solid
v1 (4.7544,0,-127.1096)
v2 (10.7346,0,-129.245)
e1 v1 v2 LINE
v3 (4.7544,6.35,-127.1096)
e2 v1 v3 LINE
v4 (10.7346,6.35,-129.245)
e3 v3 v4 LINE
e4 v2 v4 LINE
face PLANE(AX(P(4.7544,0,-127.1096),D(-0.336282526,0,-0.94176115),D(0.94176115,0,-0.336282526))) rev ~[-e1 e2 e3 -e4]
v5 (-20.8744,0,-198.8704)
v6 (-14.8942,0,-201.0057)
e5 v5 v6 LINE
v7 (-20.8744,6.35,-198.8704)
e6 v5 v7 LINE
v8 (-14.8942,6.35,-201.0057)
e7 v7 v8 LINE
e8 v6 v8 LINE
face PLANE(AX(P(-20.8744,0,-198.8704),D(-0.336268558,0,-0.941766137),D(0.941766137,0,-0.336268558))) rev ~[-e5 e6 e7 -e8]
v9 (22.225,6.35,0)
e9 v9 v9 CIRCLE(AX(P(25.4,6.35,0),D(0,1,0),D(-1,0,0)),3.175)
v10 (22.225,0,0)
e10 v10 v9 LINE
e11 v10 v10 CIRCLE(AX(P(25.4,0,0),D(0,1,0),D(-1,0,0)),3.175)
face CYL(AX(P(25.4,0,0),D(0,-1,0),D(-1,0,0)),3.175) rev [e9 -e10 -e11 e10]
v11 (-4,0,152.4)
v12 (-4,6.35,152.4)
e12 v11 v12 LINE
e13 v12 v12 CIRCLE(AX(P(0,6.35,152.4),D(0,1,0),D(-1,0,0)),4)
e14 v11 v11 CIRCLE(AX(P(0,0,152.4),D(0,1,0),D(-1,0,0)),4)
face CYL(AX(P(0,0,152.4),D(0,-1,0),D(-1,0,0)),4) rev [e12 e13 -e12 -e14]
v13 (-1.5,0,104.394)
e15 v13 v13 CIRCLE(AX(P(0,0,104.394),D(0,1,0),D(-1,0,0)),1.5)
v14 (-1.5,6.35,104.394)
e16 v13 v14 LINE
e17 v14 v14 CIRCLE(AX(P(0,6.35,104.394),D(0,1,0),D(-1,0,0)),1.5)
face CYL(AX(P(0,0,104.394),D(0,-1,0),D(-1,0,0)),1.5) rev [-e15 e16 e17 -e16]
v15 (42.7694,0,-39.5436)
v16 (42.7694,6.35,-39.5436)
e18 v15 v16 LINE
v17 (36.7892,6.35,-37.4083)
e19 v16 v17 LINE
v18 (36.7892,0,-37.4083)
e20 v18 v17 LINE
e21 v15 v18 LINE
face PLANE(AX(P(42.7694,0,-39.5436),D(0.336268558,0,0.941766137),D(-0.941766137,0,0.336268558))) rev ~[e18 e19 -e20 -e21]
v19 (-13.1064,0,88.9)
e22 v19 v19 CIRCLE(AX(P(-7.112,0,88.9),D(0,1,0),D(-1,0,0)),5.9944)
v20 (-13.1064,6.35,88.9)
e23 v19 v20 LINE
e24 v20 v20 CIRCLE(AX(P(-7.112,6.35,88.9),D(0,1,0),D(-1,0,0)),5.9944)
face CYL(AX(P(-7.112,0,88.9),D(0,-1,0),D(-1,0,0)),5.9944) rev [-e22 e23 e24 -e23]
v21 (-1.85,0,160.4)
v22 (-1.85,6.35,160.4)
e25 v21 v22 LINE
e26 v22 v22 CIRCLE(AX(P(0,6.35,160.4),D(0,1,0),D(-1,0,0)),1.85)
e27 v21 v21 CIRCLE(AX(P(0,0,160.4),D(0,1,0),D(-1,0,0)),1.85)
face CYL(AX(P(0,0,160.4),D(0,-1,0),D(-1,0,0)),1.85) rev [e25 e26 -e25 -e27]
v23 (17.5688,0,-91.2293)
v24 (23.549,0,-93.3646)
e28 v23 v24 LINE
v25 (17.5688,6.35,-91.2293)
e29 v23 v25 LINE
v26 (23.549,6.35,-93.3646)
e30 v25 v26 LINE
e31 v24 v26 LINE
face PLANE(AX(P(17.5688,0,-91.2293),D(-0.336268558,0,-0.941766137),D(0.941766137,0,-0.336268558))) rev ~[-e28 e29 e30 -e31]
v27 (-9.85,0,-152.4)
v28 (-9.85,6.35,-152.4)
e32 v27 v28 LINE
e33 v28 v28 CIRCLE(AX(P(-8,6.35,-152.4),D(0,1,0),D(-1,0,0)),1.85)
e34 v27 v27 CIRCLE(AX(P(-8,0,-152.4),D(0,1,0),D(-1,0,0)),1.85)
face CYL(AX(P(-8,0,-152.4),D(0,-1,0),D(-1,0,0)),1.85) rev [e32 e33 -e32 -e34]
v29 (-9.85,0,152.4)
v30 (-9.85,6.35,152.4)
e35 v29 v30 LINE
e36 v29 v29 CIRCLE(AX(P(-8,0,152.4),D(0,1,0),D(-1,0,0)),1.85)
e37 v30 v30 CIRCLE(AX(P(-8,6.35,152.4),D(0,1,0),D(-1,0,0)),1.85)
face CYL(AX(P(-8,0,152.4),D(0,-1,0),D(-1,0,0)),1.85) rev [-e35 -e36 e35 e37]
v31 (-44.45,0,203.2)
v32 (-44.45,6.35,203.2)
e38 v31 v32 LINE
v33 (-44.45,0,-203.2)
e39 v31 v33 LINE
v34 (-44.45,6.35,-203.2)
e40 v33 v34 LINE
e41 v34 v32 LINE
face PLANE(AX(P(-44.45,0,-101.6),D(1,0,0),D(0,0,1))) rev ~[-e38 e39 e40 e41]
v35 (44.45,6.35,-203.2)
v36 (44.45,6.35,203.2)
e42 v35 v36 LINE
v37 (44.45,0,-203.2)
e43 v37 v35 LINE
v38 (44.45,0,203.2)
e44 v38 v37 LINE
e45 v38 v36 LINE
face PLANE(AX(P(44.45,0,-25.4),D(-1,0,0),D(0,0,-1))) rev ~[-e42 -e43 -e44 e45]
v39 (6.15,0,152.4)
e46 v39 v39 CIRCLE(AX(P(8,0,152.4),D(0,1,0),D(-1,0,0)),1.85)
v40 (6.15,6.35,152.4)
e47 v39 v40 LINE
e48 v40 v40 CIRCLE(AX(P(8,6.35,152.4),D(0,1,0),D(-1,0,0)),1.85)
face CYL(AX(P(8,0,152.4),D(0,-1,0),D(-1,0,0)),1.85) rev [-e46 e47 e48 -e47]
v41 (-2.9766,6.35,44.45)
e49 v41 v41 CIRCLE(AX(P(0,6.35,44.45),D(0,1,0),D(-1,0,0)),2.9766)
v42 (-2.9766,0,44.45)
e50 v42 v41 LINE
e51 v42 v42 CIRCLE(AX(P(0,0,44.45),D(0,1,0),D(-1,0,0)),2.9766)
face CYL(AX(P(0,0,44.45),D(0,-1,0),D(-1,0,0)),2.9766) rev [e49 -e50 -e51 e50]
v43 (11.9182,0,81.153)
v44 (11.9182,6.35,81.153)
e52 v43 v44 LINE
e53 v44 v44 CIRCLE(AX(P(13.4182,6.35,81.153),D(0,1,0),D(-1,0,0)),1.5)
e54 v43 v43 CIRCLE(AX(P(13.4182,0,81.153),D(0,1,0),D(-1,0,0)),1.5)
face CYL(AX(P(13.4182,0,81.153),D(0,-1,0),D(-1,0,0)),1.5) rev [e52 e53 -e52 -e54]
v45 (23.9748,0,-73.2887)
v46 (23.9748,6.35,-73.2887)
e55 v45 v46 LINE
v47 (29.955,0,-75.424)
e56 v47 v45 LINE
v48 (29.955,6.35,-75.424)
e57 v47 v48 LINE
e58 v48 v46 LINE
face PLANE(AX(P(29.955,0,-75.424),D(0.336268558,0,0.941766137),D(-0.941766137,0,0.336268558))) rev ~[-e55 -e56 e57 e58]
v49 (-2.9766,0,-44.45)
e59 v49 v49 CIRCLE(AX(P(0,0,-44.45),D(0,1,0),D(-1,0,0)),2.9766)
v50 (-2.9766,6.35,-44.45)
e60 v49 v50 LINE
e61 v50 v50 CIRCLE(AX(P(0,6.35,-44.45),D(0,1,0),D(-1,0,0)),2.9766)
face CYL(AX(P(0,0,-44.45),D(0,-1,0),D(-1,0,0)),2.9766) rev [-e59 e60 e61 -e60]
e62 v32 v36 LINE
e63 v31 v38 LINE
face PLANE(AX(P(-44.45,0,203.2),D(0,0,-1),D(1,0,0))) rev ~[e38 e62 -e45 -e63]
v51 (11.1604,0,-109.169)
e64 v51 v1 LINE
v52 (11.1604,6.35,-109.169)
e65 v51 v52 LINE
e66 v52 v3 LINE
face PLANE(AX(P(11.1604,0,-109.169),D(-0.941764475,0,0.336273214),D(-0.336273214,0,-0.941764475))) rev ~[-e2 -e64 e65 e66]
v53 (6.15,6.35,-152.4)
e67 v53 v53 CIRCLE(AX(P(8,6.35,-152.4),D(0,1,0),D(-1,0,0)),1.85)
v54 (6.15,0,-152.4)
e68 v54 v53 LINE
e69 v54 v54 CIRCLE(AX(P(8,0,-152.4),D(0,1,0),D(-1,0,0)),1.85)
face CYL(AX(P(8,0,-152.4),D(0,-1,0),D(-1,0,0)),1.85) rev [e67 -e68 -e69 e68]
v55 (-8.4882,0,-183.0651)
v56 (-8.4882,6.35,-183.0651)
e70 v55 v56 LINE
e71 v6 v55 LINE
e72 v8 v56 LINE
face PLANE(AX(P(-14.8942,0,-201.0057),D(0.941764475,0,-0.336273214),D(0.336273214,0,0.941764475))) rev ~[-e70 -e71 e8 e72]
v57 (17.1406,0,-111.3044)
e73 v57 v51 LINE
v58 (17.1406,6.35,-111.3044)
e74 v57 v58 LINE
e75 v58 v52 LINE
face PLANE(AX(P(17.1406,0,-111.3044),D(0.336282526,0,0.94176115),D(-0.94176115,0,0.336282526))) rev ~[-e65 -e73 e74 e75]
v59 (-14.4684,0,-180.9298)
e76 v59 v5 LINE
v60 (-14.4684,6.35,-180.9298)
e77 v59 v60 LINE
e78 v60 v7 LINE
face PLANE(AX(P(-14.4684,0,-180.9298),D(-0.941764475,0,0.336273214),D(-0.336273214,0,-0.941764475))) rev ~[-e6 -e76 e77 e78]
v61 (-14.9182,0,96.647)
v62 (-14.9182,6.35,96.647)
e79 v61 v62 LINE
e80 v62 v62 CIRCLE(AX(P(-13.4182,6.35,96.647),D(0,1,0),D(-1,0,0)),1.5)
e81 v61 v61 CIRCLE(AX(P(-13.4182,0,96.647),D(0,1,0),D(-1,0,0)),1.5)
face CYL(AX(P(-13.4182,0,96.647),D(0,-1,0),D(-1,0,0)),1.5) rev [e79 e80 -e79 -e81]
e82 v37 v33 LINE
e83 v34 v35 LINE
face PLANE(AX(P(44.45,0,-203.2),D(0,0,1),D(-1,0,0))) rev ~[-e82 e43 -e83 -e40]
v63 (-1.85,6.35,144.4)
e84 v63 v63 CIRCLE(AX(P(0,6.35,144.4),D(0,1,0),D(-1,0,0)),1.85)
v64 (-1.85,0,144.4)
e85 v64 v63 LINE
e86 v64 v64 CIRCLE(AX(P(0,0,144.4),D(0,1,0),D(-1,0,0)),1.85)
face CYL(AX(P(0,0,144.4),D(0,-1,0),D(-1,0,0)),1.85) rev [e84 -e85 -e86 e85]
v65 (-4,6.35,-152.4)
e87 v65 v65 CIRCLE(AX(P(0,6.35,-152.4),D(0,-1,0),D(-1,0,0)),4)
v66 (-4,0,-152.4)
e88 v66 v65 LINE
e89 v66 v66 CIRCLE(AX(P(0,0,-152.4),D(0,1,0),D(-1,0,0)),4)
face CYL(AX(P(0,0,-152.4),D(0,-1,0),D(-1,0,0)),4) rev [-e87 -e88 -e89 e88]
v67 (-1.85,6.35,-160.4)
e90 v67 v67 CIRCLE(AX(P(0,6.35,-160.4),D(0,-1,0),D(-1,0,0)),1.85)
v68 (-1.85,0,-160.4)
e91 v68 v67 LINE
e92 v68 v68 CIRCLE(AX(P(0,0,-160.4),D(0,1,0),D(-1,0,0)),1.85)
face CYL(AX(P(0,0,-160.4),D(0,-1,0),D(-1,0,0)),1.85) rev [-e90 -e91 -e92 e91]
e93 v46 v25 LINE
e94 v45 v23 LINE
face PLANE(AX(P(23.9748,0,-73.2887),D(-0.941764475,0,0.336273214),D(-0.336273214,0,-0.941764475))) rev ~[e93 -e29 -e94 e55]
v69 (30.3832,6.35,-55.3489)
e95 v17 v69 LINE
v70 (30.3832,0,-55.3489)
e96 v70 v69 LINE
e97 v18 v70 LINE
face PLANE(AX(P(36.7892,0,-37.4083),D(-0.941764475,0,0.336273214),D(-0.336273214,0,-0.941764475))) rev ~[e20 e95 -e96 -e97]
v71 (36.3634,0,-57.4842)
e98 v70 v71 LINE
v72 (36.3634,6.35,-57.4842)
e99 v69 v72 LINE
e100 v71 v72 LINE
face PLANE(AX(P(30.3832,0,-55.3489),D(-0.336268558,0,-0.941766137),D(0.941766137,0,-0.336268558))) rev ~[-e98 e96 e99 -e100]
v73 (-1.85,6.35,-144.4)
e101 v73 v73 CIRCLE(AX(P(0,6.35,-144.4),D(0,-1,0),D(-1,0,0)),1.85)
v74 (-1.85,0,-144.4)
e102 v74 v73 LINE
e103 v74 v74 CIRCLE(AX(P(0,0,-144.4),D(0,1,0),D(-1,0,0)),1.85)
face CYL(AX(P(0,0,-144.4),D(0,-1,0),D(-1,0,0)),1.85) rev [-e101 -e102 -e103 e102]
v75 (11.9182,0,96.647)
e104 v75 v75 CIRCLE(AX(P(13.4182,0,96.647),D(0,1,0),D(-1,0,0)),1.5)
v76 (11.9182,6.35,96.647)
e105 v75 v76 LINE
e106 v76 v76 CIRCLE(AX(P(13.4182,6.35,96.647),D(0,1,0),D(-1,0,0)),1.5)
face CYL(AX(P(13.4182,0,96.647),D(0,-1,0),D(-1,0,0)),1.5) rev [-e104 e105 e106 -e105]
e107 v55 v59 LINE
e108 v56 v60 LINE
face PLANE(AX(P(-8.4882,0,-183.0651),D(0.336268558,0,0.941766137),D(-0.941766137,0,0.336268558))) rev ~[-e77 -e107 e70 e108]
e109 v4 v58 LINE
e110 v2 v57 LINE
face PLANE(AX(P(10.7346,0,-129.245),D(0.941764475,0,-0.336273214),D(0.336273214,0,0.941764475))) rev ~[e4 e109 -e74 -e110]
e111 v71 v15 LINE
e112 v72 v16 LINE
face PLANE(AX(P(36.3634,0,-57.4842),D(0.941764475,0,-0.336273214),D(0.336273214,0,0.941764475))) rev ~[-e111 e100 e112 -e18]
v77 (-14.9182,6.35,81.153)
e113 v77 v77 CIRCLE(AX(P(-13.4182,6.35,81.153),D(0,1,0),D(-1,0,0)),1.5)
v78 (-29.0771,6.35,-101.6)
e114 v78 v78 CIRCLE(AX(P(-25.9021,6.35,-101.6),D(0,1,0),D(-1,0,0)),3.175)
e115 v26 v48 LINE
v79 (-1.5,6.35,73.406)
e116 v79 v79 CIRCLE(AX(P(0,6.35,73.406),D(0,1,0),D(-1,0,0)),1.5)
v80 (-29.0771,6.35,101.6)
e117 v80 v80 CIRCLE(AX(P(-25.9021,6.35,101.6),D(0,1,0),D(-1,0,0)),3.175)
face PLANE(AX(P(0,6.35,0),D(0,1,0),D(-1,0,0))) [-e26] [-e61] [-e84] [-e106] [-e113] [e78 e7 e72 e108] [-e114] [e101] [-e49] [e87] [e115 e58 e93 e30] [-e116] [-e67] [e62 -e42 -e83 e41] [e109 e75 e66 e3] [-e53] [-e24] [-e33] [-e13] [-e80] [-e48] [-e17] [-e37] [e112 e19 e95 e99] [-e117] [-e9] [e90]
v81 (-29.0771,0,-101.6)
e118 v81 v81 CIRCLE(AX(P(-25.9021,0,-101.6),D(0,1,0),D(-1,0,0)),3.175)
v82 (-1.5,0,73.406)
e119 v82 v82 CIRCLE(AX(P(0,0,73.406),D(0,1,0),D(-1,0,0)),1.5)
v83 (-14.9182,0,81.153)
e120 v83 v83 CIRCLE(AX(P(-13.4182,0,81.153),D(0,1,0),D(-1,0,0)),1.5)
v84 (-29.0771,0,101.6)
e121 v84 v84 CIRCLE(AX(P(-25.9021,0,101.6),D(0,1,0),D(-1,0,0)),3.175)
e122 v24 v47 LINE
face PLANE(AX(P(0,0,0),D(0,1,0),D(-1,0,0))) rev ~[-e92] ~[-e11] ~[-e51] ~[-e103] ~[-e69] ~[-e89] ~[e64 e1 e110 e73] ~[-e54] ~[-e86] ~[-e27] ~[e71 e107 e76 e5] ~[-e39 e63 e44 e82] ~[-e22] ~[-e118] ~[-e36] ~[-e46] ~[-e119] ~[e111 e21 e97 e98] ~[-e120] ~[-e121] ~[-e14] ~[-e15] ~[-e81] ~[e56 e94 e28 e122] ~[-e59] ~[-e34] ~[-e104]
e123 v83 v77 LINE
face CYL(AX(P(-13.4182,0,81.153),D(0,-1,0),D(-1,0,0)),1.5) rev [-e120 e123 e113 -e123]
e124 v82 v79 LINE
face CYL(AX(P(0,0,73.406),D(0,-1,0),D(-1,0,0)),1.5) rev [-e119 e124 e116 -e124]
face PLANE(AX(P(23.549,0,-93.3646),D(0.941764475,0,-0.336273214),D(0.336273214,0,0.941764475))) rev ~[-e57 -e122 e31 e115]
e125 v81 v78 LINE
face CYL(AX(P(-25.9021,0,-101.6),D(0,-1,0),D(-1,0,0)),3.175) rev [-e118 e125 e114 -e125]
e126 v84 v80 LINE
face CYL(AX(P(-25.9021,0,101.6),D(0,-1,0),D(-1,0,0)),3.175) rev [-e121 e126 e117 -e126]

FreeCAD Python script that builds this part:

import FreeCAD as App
import Part
import Sketcher

V = App.Vector
Q = App.Units.Quantity


def add_polygon(sketch, points):
    """Adds a closed chain of lines whose ends are joined by coincident constraints."""
    first, n = sketch.GeometryCount, len(points)
    for a, b in zip(points, points[1:] + points[:1]):
        sketch.addGeometry(Part.LineSegment(App.Vector(*a, 0), App.Vector(*b, 0)), False)
    for i in range(n):
        sketch.addConstraint(Sketcher.Constraint("Coincident", first + i, 2, first + (i + 1) % n, 1))

doc = App.newDocument("Part")
params = doc.addObject("Spreadsheet::Sheet", "Params")
for row, (alias, value) in enumerate([
    ("sketch1_diameter", "0.25 in"),
    ("sketch1_height", "16 in"),
    ("sketch1_diameter2", "0.234378 in"),
    ("sketch1_diameter3", "0.472 in"),
    ("sketch1_width", "3.5 in"),
    ("pad1_length", "0.25 in"),
], start=1):
    params.set(f"A{row}", alias)
    params.set(f"B{row}", "=" + value)
    params.setAlias(f"B{row}", alias)

body = doc.addObject("PartDesign::Body", "Body")

sketch1 = body.newObject("Sketcher::SketchObject", "Sketch")
sketch1.AttachmentSupport = (doc.getObject("XZ_Plane"), [""])
sketch1.MapMode = "FlatFace"
add_polygon(sketch1, [(44.5, -203.2), (-44.5, -203.2), (-44.5, 203.2), (44.5, 203.2)])
sketch1.addGeometry(Part.Circle(V(8, -152.4, 0), V(0, 0, 1), 1.9), False)
add_polygon(sketch1, [(4.8, -127.1), (10.7, -129.2), (17.1, -111.3), (11.2, -109.2)])
add_polygon(sketch1, [(17.6, -91.2), (23.5, -93.4), (30, -75.4), (24, -73.3)])
add_polygon(sketch1, [(36.8, -37.4), (30.4, -55.3), (36.4, -57.5), (42.8, -39.5)])
sketch1.addGeometry(Part.Circle(V(25.4, 0, 0), V(0, 0, 1), 3.2), False)
sketch1.addGeometry(Part.Circle(V(0, -152.4, 0), V(0, 0, 1), 4), False)
sketch1.addGeometry(Part.Circle(V(0, -160.4, 0), V(0, 0, 1), 1.9), False)
sketch1.addGeometry(Part.Circle(V(0, -144.4, 0), V(0, 0, 1), 1.9), False)
sketch1.addGeometry(Part.Circle(V(-8, -152.4, 0), V(0, 0, 1), 1.9), False)
add_polygon(sketch1, [(-20.9, -198.9), (-14.9, -201), (-8.5, -183.1), (-14.5, -180.9)])
sketch1.addGeometry(Part.Circle(V(-25.9, -101.6, 0), V(0, 0, 1), 3.2), False)
sketch1.addGeometry(Part.Circle(V(0, -44.5, 0), V(0, 0, 1), 3), False)
sketch1.addGeometry(Part.Circle(V(13.4, 81.2, 0), V(0, 0, 1), 1.5), False)
sketch1.addGeometry(Part.Circle(V(13.4, 96.6, 0), V(0, 0, 1), 1.5), False)
sketch1.addGeometry(Part.Circle(V(8, 152.4, 0), V(0, 0, 1), 1.9), False)
sketch1.addGeometry(Part.Circle(V(0, 44.5, 0), V(0, 0, 1), 3), False)
sketch1.addGeometry(Part.Circle(V(0, 73.4, 0), V(0, 0, 1), 1.5), False)
sketch1.addGeometry(Part.Circle(V(-7.1, 88.9, 0), V(0, 0, 1), 6), False)
sketch1.addGeometry(Part.Circle(V(-13.4, 81.2, 0), V(0, 0, 1), 1.5), False)
sketch1.addGeometry(Part.Circle(V(-13.4, 96.6, 0), V(0, 0, 1), 1.5), False)
sketch1.addGeometry(Part.Circle(V(-25.9, 101.6, 0), V(0, 0, 1), 3.2), False)
sketch1.addGeometry(Part.Circle(V(0, 104.4, 0), V(0, 0, 1), 1.5), False)
sketch1.addGeometry(Part.Circle(V(0, 144.4, 0), V(0, 0, 1), 1.9), False)
sketch1.addGeometry(Part.Circle(V(0, 152.4, 0), V(0, 0, 1), 4), False)
sketch1.addGeometry(Part.Circle(V(0, 160.4, 0), V(0, 0, 1), 1.9), False)
sketch1.addGeometry(Part.Circle(V(-8, 152.4, 0), V(0, 0, 1), 1.9), False)
sketch1.addConstraint([
    Sketcher.Constraint("Horizontal", 0),
    Sketcher.Constraint("Vertical", 1),
    Sketcher.Constraint("Horizontal", 2),
    Sketcher.Constraint("Vertical", 3),
    Sketcher.Constraint("Equal", 4, 19),
    Sketcher.Constraint("Equal", 19, 20),
    Sketcher.Constraint("Equal", 20, 21),
    Sketcher.Constraint("Equal", 17, 26),
    Sketcher.Constraint("Equal", 28, 29),
    Sketcher.Constraint("Equal", 21, 30),
    Sketcher.Constraint("Equal", 27, 31),
    Sketcher.Constraint("Equal", 29, 32),
    Sketcher.Constraint("Equal", 32, 34),
    Sketcher.Constraint("Equal", 34, 35),
    Sketcher.Constraint("Equal", 26, 36),
    Sketcher.Constraint("Equal", 35, 37),
    Sketcher.Constraint("Equal", 30, 38),
    Sketcher.Constraint("Equal", 18, 39),
    Sketcher.Constraint("Equal", 38, 40),
    Sketcher.Constraint("Equal", 40, 41),
    Sketcher.Constraint("Symmetric", 21, 3, 30, 3, -1, 1),
    Sketcher.Constraint("Symmetric", 27, 3, 31, 3, -1, 1),
    Sketcher.Constraint("Symmetric", 20, 3, 38, 3, -1, 1),
    Sketcher.Constraint("Symmetric", 18, 3, 39, 3, -1, 1),
    Sketcher.Constraint("Symmetric", 19, 3, 40, 3, -1, 1),
    Sketcher.Constraint("Symmetric", 4, 3, 41, 3, -1, 1),
    Sketcher.Constraint("Symmetric", 0, 2, 2, 2, -1, 1),
    Sketcher.Constraint("Symmetric", 4, 3, 21, 3, -2),
    Sketcher.Constraint("Symmetric", 28, 3, 34, 3, -2),
    Sketcher.Constraint("Symmetric", 29, 3, 35, 3, -2),
    Sketcher.Constraint("Symmetric", 26, 3, 36, 3, -1),
    Sketcher.Constraint("PointOnObject", 17, 3, -1),
    Sketcher.Constraint("PointOnObject", 18, 3, -2),
    Sketcher.Constraint("PointOnObject", 19, 3, -2),
    Sketcher.Constraint("PointOnObject", 20, 3, -2),
    Sketcher.Constraint("PointOnObject", 27, 3, -2),
    Sketcher.Constraint("PointOnObject", 32, 3, -2),
    Sketcher.Constraint("PointOnObject", 37, 3, -2),
    Sketcher.Constraint("Perpendicular", 5, 6),
    Sketcher.Constraint("Perpendicular", 6, 7),
    Sketcher.Constraint("Perpendicular", 7, 8),
    Sketcher.Constraint("Perpendicular", 8, 9),
    Sketcher.Constraint("Perpendicular", 9, 10),
    Sketcher.Constraint("Perpendicular", 10, 11),
    Sketcher.Constraint("Perpendicular", 11, 12),
    Sketcher.Constraint("Parallel", 12, 13),
    Sketcher.Constraint("Perpendicular", 13, 14),
    Sketcher.Constraint("Perpendicular", 14, 15),
    Sketcher.Constraint("Perpendicular", 15, 16),
    Sketcher.Constraint("Parallel", 16, 22),
    Sketcher.Constraint("Perpendicular", 22, 23),
    Sketcher.Constraint("Perpendicular", 23, 24),
    Sketcher.Constraint("Perpendicular", 24, 25),
    Sketcher.Constraint("Horizontal", 4, 3, 18, 3),
    Sketcher.Constraint("Vertical", 28, 3, 29, 3),
    Sketcher.Constraint("Equal", 7, 9),
    Sketcher.Constraint("Equal", 8, 10),
    Sketcher.Constraint("Equal", 12, 13),
    Sketcher.Constraint("Equal", 11, 14),
    Sketcher.Constraint("Equal", 16, 22),
    Sketcher.Constraint("Equal", 15, 23),
    Sketcher.Constraint("Diameter", 17, Q("0.25 in")),
    Sketcher.Constraint("DistanceY", 1, 1, 1, 2, Q("16 in")),
    Sketcher.Constraint("Diameter", 27, Q("0.234378 in")),
    Sketcher.Constraint("Diameter", 33, Q("0.472 in")),
    Sketcher.Constraint("DistanceX", 0, 2, 0, 1, Q("3.5 in")),
    Sketcher.Constraint("DistanceY", 4, 3, -1, 1, Q("6 in")),
    Sketcher.Constraint("DistanceX", -1, 1, 17, 3, Q("1 in")),
    Sketcher.Constraint("DistanceY", 26, 3, -1, 1, Q("4 in")),
    Sketcher.Constraint("Diameter", 28, Q("0.1181 in")),
    Sketcher.Constraint("DistanceY", -1, 1, 33, 3, Q("3.5 in")),
    Sketcher.Constraint("DistanceY", 27, 3, 31, 3, Q("3.5 in")),
    Sketcher.Constraint("Distance", 5, Q("0.25 in")),
    Sketcher.Constraint("Distance", 6, Q("0.75 in")),
    Sketcher.Constraint("Diameter", 4, 3.7),
    Sketcher.Constraint("Diameter", 18, 8.0),
    Sketcher.Constraint("DistanceX", -1, 1, 4, 3, 8.0),
    Sketcher.Constraint("DistanceY", -1, 1, 32, 3, Q("2.89 in")),
    Sketcher.Constraint("DistanceX", 33, 3, -1, 1, Q("0.28 in")),
    Sketcher.Constraint("DistanceY", -1, 1, 37, 3, Q("4.11 in")),
    Sketcher.Constraint("Angle", 5, Q("-19.6505 deg")),
    Sketcher.Constraint("DistanceY", 19, 3, 18, 3, 8.0),
    Sketcher.Constraint("DistanceY", 18, 3, 20, 3, 8.0),
    Sketcher.Constraint("DistanceY", 28, 3, 29, 3, Q("0.61 in")),
    Sketcher.Constraint("DistanceY", -1, 1, 28, 3, Q("3.195 in")),
    Sketcher.Constraint("DistanceY", 7, 2, -1, 1, Q("4.298 in")),
    Sketcher.Constraint("DistanceX", -1, 1, 11, 2, Q("0.9439 in")),
    Sketcher.Constraint("DistanceY", 12, 2, -1, 1, Q("3.5917 in")),
    Sketcher.Constraint("DistanceX", -1, 1, 13, 2, Q("1.1962 in")),
    Sketcher.Constraint("DistanceY", 13, 2, -1, 1, Q("2.1791 in")),
    Sketcher.Constraint("DistanceY", 22, 2, -1, 1, Q("7.9136 in")),
    Sketcher.Constraint("DistanceX", 26, 3, 21, 3, Q("0.7048 in")),
    Sketcher.Constraint("DistanceX", 36, 3, 35, 3, Q("0.4915 in")),
    Sketcher.Constraint("DistanceX", 26, 3, 6, 2, Q("1.6946 in")),
    Sketcher.Constraint("DistanceX", 22, 2, -1, 1, 14.8942),
])
sketch1.setExpression("Constraints[81]", "Params.sketch1_diameter")
sketch1.setExpression("Constraints[82]", "Params.sketch1_height")
sketch1.setExpression("Constraints[83]", "Params.sketch1_diameter2")
sketch1.setExpression("Constraints[84]", "Params.sketch1_diameter3")
sketch1.setExpression("Constraints[85]", "Params.sketch1_width")
pad1 = body.newObject("PartDesign::Pad", "Pad")
pad1.Profile = sketch1
pad1.setExpression("Length", "Params.pad1_length")
pad1.Reversed = True

doc.recompute()
